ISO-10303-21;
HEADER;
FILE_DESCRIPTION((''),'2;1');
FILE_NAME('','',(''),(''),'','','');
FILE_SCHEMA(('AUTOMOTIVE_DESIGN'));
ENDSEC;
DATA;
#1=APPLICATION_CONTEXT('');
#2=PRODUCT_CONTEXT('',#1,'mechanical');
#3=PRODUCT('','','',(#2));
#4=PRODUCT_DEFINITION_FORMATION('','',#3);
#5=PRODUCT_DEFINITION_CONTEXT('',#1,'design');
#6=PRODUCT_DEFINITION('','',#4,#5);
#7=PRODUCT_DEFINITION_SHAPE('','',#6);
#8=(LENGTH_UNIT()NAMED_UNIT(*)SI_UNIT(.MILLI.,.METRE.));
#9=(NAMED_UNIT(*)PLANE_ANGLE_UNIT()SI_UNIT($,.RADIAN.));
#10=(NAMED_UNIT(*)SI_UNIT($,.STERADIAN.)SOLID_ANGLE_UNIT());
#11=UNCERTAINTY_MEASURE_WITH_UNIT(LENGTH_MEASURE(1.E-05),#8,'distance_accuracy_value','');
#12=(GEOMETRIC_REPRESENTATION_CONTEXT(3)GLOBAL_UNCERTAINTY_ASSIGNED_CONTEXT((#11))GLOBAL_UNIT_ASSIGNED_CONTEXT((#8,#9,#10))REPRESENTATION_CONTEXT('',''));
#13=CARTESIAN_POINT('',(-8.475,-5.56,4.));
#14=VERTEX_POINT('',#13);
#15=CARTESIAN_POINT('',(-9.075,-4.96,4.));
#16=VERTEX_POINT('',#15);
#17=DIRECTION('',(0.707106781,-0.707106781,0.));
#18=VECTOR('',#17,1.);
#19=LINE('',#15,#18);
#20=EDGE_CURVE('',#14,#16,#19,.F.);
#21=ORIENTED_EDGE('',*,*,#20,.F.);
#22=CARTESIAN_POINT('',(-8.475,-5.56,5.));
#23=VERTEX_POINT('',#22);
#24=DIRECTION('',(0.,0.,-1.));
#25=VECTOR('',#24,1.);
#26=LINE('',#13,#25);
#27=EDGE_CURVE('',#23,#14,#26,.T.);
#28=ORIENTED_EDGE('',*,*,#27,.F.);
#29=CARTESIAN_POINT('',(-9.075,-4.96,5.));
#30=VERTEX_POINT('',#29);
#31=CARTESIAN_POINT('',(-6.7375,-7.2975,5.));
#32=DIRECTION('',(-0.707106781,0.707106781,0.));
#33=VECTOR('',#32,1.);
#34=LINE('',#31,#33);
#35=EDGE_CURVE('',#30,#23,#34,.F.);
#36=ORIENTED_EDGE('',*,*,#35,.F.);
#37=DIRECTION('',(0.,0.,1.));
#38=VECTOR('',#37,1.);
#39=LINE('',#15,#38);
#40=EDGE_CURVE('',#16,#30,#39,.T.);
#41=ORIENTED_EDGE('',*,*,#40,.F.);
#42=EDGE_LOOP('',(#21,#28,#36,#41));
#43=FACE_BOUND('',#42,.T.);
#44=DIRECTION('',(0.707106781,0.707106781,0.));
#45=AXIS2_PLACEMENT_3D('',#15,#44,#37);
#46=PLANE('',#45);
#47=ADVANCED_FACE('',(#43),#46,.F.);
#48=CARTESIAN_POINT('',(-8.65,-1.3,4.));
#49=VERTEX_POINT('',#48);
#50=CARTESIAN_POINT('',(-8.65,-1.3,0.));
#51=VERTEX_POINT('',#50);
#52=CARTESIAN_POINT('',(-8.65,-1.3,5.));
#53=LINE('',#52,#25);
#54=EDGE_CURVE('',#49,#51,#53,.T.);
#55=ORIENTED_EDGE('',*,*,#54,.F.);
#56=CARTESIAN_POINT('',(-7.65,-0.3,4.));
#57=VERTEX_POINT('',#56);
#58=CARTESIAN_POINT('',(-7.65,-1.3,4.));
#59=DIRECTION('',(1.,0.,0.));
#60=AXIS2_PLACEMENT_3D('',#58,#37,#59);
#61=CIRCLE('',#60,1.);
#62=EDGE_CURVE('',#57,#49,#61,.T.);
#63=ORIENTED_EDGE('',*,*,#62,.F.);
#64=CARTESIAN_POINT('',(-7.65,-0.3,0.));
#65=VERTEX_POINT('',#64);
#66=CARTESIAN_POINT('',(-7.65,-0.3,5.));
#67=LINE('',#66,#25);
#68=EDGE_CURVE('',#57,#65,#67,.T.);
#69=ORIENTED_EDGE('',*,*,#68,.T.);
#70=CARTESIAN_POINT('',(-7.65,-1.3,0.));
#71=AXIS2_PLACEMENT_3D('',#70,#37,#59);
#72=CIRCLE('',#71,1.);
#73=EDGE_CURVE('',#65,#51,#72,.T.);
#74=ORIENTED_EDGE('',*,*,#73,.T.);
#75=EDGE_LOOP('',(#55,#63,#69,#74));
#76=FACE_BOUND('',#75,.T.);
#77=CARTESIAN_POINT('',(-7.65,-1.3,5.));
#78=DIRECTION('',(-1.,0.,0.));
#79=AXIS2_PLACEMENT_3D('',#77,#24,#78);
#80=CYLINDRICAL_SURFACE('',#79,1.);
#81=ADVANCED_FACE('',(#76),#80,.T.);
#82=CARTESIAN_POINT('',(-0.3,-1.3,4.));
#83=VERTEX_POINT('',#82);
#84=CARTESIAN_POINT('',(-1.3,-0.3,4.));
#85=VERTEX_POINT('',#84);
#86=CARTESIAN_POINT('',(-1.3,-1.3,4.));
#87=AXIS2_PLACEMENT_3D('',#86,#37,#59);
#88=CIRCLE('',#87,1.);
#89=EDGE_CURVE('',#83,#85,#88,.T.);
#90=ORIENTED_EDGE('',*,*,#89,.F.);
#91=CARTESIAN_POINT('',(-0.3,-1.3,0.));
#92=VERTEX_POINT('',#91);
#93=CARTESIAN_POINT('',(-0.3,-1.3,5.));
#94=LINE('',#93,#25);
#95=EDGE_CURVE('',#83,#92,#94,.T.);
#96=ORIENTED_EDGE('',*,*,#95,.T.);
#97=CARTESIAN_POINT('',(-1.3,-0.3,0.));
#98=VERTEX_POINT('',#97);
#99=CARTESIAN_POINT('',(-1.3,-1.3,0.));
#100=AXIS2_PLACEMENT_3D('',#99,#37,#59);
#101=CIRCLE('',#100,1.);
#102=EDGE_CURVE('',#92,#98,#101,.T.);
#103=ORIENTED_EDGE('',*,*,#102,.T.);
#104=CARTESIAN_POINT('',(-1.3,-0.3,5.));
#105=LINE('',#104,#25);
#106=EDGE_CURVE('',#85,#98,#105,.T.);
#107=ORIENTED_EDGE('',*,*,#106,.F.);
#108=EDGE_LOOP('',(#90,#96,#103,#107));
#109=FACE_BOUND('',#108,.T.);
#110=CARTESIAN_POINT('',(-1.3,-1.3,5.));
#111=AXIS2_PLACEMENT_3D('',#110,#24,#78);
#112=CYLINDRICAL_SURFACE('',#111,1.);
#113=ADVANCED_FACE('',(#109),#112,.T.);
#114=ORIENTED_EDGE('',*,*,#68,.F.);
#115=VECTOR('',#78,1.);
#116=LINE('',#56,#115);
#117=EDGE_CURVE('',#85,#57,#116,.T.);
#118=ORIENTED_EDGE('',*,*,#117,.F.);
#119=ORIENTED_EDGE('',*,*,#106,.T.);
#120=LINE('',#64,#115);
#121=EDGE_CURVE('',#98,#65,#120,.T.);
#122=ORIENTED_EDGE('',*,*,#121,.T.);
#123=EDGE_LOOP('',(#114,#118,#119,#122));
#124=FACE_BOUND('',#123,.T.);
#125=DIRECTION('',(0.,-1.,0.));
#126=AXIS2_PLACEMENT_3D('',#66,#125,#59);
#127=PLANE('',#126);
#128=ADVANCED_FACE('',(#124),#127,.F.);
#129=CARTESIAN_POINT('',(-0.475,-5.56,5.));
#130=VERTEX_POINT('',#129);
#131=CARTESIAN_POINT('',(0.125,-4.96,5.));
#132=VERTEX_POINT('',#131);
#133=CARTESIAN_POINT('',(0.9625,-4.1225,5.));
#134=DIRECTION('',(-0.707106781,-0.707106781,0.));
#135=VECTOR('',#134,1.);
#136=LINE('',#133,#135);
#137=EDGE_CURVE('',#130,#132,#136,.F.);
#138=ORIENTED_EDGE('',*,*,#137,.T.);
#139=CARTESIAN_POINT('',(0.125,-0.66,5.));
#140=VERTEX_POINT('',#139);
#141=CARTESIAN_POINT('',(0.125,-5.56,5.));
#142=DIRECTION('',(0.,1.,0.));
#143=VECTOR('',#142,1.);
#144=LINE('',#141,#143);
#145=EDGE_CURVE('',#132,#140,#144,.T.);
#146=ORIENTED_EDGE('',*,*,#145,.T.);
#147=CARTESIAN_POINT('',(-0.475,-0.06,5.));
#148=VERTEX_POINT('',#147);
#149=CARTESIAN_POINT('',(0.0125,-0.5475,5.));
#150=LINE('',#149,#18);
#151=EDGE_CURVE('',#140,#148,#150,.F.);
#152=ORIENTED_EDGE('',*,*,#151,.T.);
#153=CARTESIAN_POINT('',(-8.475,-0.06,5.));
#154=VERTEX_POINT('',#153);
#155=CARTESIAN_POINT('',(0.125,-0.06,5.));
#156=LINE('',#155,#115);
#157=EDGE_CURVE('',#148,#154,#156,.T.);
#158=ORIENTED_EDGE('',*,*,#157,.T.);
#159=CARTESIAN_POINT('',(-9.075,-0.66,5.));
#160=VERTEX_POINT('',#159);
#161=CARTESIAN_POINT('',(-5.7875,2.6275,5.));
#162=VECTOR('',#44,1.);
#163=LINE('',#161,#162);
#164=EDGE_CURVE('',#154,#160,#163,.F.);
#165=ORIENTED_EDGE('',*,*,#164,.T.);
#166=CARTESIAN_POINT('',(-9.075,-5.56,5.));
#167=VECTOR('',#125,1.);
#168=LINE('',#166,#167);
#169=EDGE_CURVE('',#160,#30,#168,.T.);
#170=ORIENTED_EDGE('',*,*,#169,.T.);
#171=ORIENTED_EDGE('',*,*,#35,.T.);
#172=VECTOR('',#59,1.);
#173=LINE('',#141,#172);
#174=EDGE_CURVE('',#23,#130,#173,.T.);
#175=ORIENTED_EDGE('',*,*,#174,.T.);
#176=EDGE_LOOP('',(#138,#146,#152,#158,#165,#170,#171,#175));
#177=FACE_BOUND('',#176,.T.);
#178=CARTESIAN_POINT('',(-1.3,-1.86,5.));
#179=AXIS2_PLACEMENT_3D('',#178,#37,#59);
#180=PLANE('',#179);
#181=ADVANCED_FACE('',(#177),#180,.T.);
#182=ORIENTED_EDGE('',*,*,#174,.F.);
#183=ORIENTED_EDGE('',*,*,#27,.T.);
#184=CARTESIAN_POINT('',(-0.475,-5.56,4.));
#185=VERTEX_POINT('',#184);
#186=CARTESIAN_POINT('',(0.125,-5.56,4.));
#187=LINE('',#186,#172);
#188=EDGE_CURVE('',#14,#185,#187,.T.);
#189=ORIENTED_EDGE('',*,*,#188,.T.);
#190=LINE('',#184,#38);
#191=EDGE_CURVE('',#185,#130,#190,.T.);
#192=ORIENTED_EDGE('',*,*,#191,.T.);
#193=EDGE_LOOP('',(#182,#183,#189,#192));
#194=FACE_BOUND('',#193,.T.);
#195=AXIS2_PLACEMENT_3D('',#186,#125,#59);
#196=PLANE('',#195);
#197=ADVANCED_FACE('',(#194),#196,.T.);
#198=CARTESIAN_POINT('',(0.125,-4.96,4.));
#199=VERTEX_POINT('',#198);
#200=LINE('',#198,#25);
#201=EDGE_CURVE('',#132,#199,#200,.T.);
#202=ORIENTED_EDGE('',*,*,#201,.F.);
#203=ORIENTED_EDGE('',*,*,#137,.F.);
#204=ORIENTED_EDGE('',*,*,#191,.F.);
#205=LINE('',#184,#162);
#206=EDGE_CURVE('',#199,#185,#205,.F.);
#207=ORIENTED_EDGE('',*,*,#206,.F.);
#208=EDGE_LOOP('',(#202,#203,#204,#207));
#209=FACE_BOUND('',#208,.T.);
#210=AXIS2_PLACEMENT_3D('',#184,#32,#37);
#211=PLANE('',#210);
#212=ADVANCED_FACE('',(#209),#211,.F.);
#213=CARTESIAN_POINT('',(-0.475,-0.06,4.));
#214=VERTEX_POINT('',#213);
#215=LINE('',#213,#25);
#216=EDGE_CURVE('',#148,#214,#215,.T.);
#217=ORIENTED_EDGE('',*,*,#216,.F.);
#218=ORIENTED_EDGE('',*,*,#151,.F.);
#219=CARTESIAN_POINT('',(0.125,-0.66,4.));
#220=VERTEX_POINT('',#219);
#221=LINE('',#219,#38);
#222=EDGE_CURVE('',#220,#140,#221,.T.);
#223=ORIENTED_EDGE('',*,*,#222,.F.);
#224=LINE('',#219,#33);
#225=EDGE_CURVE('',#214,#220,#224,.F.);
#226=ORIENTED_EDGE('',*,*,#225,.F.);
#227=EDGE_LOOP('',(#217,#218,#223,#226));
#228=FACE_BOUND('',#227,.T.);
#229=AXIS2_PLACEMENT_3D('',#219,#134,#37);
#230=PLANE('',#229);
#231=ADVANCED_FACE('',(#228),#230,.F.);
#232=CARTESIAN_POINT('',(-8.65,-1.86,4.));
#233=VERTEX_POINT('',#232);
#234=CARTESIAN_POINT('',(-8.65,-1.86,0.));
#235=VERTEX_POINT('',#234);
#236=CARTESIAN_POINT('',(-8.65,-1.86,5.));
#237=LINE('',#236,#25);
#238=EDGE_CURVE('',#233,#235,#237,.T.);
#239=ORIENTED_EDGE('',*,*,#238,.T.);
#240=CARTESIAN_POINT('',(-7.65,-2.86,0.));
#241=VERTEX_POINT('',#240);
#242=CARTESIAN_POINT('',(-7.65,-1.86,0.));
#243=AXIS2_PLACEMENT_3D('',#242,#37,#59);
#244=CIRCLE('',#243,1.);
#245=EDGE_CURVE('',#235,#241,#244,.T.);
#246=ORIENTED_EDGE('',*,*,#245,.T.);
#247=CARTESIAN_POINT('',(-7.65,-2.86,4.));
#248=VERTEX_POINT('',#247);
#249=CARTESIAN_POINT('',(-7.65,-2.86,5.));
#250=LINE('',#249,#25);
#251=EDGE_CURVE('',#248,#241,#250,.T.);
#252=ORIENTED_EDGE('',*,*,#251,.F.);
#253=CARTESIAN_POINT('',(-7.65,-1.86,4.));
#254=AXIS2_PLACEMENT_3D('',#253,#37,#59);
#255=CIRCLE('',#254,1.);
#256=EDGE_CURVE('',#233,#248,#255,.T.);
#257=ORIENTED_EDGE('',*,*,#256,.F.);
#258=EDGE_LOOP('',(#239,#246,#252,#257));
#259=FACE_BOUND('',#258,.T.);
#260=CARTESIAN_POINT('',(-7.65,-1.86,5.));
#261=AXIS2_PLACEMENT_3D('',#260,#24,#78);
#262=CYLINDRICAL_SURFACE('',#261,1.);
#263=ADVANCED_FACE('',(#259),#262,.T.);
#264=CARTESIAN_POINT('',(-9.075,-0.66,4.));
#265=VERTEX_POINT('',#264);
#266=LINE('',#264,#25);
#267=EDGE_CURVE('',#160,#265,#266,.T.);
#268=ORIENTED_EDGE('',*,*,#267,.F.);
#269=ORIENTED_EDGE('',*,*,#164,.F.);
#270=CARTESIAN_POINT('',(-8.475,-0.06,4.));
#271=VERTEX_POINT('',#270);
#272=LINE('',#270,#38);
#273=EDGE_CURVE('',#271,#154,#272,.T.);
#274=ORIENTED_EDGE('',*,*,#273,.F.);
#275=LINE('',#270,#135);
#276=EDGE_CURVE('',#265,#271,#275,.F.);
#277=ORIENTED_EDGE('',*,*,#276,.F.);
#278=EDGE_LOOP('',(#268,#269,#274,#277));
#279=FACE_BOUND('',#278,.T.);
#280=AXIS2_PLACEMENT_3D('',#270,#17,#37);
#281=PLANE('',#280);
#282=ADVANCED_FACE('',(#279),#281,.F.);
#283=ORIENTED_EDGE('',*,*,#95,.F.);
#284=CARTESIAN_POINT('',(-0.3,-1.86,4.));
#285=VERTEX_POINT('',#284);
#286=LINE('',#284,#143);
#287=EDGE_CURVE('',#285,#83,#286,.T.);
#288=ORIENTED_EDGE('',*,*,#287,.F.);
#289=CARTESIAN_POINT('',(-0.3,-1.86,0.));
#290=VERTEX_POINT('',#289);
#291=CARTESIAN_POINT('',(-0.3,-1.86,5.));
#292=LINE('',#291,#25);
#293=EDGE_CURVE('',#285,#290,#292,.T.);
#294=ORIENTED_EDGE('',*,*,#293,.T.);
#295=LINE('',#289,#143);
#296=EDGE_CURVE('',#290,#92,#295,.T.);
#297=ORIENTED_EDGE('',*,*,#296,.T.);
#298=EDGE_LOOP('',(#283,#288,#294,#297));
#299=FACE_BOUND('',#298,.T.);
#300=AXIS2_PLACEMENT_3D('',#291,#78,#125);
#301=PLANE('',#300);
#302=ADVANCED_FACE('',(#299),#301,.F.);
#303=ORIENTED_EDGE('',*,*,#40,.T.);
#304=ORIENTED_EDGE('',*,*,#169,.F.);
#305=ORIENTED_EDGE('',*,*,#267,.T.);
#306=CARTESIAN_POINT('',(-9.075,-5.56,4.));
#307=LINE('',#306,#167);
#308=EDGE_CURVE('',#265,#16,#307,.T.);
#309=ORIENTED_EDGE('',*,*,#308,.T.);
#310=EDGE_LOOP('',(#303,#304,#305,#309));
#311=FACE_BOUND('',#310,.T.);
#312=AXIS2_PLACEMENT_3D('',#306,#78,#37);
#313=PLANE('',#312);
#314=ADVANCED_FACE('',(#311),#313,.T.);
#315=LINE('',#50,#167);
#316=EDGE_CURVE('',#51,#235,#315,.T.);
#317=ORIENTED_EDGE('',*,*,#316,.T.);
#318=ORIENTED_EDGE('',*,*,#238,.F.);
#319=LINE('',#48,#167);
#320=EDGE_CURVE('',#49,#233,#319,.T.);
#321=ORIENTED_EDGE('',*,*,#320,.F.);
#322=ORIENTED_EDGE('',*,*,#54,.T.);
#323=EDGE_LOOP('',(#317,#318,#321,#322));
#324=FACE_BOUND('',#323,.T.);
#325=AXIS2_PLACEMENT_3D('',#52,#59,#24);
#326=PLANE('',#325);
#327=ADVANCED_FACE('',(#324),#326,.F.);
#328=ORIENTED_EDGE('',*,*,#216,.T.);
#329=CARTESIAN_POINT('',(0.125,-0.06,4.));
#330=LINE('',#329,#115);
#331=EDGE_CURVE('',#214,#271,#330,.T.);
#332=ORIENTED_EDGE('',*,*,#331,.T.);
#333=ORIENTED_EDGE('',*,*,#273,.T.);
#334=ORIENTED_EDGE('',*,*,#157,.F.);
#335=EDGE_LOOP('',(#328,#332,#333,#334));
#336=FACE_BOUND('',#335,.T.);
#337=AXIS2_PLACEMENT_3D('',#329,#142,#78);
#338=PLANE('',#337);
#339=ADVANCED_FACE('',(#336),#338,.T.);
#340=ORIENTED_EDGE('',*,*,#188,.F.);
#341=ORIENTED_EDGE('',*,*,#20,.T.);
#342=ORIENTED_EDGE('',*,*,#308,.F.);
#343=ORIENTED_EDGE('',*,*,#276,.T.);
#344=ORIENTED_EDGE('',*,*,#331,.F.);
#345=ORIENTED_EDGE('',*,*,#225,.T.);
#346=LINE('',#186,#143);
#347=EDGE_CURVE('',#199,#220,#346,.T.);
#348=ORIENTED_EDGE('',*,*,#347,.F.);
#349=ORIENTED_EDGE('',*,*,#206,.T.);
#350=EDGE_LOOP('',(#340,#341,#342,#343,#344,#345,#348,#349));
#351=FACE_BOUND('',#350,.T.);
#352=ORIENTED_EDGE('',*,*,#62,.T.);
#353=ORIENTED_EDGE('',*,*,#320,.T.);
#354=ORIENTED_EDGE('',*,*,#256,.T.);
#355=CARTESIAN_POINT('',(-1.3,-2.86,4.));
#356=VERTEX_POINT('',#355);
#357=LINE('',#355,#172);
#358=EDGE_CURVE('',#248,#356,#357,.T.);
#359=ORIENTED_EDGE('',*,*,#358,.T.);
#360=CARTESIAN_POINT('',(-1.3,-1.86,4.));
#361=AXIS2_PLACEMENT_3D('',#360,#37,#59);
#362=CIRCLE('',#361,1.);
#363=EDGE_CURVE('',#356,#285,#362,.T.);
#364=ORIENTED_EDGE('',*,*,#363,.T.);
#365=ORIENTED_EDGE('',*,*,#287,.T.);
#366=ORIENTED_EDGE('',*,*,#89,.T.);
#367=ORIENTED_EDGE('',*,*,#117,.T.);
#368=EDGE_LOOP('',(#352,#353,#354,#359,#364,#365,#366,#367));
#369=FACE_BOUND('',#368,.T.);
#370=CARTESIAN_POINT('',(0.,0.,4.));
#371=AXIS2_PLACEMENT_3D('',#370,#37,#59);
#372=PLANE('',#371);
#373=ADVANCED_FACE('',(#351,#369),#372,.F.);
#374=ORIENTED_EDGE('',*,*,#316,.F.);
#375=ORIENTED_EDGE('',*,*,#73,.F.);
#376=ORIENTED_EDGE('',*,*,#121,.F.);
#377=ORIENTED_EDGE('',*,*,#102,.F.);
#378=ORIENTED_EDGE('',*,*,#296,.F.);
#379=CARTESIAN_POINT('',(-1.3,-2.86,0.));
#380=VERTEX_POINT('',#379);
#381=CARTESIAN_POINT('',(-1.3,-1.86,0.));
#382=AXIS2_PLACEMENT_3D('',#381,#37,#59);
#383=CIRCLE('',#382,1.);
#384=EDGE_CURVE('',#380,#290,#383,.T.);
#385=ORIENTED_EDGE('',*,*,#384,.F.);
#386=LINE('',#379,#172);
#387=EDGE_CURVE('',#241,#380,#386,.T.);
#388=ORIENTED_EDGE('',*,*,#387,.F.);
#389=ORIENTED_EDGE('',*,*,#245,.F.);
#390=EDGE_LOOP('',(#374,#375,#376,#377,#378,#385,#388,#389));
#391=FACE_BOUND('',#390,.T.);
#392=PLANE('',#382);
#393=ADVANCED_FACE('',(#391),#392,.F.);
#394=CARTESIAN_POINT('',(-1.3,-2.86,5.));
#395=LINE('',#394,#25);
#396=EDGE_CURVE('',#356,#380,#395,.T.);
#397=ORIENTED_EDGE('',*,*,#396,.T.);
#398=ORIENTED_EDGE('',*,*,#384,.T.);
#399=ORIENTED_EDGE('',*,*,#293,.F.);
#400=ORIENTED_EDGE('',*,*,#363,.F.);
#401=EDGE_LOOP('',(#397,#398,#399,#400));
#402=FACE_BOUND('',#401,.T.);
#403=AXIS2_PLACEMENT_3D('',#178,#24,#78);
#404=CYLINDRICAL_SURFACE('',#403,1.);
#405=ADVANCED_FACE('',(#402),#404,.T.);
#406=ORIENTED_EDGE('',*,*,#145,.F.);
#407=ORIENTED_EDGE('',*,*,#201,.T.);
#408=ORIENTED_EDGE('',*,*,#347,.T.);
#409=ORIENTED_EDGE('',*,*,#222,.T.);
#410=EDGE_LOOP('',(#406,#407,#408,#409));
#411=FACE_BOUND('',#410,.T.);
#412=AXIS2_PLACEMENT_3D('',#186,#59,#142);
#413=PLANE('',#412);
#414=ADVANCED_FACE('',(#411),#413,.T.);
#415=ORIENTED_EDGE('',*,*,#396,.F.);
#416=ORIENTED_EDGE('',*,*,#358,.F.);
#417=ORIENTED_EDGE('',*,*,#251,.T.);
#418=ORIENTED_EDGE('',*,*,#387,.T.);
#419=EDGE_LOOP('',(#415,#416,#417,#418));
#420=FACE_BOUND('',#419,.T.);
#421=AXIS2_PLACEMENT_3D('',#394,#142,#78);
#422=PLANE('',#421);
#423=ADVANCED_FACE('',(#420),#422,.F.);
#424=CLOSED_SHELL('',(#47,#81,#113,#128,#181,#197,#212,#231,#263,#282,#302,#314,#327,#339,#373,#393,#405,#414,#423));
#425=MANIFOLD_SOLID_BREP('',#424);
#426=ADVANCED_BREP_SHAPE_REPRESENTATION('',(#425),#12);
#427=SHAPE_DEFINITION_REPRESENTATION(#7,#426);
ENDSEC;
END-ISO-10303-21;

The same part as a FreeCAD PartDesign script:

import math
import FreeCAD as App
import Part
import Sketcher

V = App.Vector
Q = App.Units.Quantity


def edges_at(feature, points):
    """Names of the edges that pass closest to the given points."""
    edges = feature.Shape.Edges
    near = lambda p: min(range(len(edges)), key=lambda i: edges[i].distToShape(Part.Vertex(*p))[0])
    return sorted({f"Edge{near(p) + 1}" for p in points})


def add_polygon(sketch, points):
    """Adds a closed chain of lines whose ends are joined by coincident constraints."""
    first, n = sketch.GeometryCount, len(points)
    for a, b in zip(points, points[1:] + points[:1]):
        sketch.addGeometry(Part.LineSegment(App.Vector(*a, 0), App.Vector(*b, 0)), False)
    for i in range(n):
        sketch.addConstraint(Sketcher.Constraint("Coincident", first + i, 2, first + (i + 1) % n, 1))

doc = App.newDocument("Part")
params = doc.addObject("Spreadsheet::Sheet", "Params")
for row, (alias, value) in enumerate([
    ("sketch1_radius", "1 mm"),
    ("sketch1_width", "6.35 mm"),
    ("sketch1_height", "0.56 mm"),
    ("pad1_length", "5 mm"),
    ("sketch2_width", "9.2 mm"),
    ("sketch2_height", "5.5 mm"),
    ("pad2_length", "1 mm"),
    ("chamfer_size", "0.6 mm"),
], start=1):
    params.set(f"A{row}", alias)
    params.set(f"B{row}", "=" + value)
    params.setAlias(f"B{row}", alias)

body = doc.addObject("PartDesign::Body", "Body")

sketch1 = body.newObject("Sketcher::SketchObject", "Sketch")
sketch1.AttachmentSupport = (doc.getObject("XY_Plane"), [""])
sketch1.MapMode = "FlatFace"
sketch1.addGeometry(Part.ArcOfCircle(Part.Circle(V(-1.3, -1.3, 0), V(0, 0, 1), 1), math.radians(0), math.radians(90)), False)
sketch1.addGeometry(Part.LineSegment(V(-1.3, -0.3, 0), V(-7.7, -0.3, 0)), False)
sketch1.addGeometry(Part.ArcOfCircle(Part.Circle(V(-7.6, -1.3, 0), V(0, 0, 1), 1), math.radians(90), math.radians(180)), False)
sketch1.addGeometry(Part.LineSegment(V(-8.7, -1.3, 0), V(-8.7, -1.9, 0)), False)
sketch1.addGeometry(Part.ArcOfCircle(Part.Circle(V(-7.6, -1.9, 0), V(0, 0, 1), 1), math.radians(-180), math.radians(-90)), False)
sketch1.addGeometry(Part.LineSegment(V(-7.7, -2.9, 0), V(-1.3, -2.9, 0)), False)
sketch1.addGeometry(Part.ArcOfCircle(Part.Circle(V(-1.3, -1.9, 0), V(0, 0, 1), 1), math.radians(-90), math.radians(0)), False)
sketch1.addGeometry(Part.LineSegment(V(-0.3, -1.9, 0), V(-0.3, -1.3, 0)), False)
sketch1.addConstraint(Sketcher.Constraint("Tangent", 0, 2, 1, 1))
sketch1.addConstraint(Sketcher.Constraint("Tangent", 1, 2, 2, 1))
sketch1.addConstraint(Sketcher.Constraint("Tangent", 2, 2, 3, 1))
sketch1.addConstraint(Sketcher.Constraint("Tangent", 3, 2, 4, 1))
sketch1.addConstraint(Sketcher.Constraint("Tangent", 4, 2, 5, 1))
sketch1.addConstraint(Sketcher.Constraint("Tangent", 5, 2, 6, 1))
sketch1.addConstraint(Sketcher.Constraint("Tangent", 6, 2, 7, 1))
sketch1.addConstraint(Sketcher.Constraint("Tangent", 7, 2, 0, 1))
sketch1.addConstraint(Sketcher.Constraint("Horizontal", 1))
sketch1.addConstraint(Sketcher.Constraint("Vertical", 3))
sketch1.addConstraint(Sketcher.Constraint("Horizontal", 5))
sketch1.addConstraint(Sketcher.Constraint("Vertical", 7))
sketch1.addConstraint(Sketcher.Constraint("Equal", 0, 2))
sketch1.addConstraint(Sketcher.Constraint("Equal", 2, 4))
sketch1.addConstraint(Sketcher.Constraint("Equal", 4, 6))
sketch1.addConstraint(Sketcher.Constraint("Radius", 0, Q("1 mm")))
sketch1.addConstraint(Sketcher.Constraint("DistanceX", 1, 2, 1, 1, Q("6.35 mm")))
sketch1.addConstraint(Sketcher.Constraint("DistanceY", 3, 2, 3, 1, Q("0.56 mm")))
sketch1.addConstraint(Sketcher.Constraint("DistanceX", 0, 3, -1, 1, Q("1.3 mm")))
sketch1.addConstraint(Sketcher.Constraint("DistanceY", 0, 3, -1, 1, Q("1.3 mm")))
sketch1.setExpression("Constraints[15]", "Params.sketch1_radius")
sketch1.setExpression("Constraints[16]", "Params.sketch1_width")
sketch1.setExpression("Constraints[17]", "Params.sketch1_height")
pad1 = body.newObject("PartDesign::Pad", "Pad")
pad1.Profile = sketch1
pad1.setExpression("Length", "Params.pad1_length")

sketch2 = body.newObject("Sketcher::SketchObject", "Sketch001")
sketch2.AttachmentSupport = (doc.getObject("XY_Plane"), [""])
sketch2.MapMode = "FlatFace"
sketch2.AttachmentOffset = App.Placement(V(0, 0, 5), App.Rotation())
add_polygon(sketch2, [(-9, 0), (-9, -6), (0, -6), (0, 0)])
sketch2.addConstraint(Sketcher.Constraint("Vertical", 0))
sketch2.addConstraint(Sketcher.Constraint("Horizontal", 1))
sketch2.addConstraint(Sketcher.Constraint("Vertical", 2))
sketch2.addConstraint(Sketcher.Constraint("Horizontal", 3))
sketch2.addConstraint(Sketcher.Constraint("DistanceX", 1, 1, 1, 2, Q("9.2 mm")))
sketch2.addConstraint(Sketcher.Constraint("DistanceY", 0, 2, 0, 1, Q("5.5 mm")))
sketch2.addConstraint(Sketcher.Constraint("DistanceY", 0, 2, -1, 1, Q("5.56 mm")))
sketch2.addConstraint(Sketcher.Constraint("DistanceX", 0, 2, -1, 1, Q("9.075 mm")))
sketch2.setExpression("Constraints[8]", "Params.sketch2_width")
sketch2.setExpression("Constraints[9]", "Params.sketch2_height")
pad2 = body.newObject("PartDesign::Pad", "Pad001")
pad2.Profile = sketch2
pad2.setExpression("Length", "Params.pad2_length")
pad2.Reversed = True
doc.recompute()

chamfer = body.newObject("PartDesign::Chamfer", "Chamfer")
chamfer.Base = (pad2, edges_at(pad2, [
    (0.125, -0.06, 4.5),
    (0.125, -5.56, 4.5),
    (-9.075, -5.56, 4.5),
    (-9.075, -0.06, 4.5),
]))
chamfer.setExpression("Size", "Params.chamfer_size")

doc.recompute()
